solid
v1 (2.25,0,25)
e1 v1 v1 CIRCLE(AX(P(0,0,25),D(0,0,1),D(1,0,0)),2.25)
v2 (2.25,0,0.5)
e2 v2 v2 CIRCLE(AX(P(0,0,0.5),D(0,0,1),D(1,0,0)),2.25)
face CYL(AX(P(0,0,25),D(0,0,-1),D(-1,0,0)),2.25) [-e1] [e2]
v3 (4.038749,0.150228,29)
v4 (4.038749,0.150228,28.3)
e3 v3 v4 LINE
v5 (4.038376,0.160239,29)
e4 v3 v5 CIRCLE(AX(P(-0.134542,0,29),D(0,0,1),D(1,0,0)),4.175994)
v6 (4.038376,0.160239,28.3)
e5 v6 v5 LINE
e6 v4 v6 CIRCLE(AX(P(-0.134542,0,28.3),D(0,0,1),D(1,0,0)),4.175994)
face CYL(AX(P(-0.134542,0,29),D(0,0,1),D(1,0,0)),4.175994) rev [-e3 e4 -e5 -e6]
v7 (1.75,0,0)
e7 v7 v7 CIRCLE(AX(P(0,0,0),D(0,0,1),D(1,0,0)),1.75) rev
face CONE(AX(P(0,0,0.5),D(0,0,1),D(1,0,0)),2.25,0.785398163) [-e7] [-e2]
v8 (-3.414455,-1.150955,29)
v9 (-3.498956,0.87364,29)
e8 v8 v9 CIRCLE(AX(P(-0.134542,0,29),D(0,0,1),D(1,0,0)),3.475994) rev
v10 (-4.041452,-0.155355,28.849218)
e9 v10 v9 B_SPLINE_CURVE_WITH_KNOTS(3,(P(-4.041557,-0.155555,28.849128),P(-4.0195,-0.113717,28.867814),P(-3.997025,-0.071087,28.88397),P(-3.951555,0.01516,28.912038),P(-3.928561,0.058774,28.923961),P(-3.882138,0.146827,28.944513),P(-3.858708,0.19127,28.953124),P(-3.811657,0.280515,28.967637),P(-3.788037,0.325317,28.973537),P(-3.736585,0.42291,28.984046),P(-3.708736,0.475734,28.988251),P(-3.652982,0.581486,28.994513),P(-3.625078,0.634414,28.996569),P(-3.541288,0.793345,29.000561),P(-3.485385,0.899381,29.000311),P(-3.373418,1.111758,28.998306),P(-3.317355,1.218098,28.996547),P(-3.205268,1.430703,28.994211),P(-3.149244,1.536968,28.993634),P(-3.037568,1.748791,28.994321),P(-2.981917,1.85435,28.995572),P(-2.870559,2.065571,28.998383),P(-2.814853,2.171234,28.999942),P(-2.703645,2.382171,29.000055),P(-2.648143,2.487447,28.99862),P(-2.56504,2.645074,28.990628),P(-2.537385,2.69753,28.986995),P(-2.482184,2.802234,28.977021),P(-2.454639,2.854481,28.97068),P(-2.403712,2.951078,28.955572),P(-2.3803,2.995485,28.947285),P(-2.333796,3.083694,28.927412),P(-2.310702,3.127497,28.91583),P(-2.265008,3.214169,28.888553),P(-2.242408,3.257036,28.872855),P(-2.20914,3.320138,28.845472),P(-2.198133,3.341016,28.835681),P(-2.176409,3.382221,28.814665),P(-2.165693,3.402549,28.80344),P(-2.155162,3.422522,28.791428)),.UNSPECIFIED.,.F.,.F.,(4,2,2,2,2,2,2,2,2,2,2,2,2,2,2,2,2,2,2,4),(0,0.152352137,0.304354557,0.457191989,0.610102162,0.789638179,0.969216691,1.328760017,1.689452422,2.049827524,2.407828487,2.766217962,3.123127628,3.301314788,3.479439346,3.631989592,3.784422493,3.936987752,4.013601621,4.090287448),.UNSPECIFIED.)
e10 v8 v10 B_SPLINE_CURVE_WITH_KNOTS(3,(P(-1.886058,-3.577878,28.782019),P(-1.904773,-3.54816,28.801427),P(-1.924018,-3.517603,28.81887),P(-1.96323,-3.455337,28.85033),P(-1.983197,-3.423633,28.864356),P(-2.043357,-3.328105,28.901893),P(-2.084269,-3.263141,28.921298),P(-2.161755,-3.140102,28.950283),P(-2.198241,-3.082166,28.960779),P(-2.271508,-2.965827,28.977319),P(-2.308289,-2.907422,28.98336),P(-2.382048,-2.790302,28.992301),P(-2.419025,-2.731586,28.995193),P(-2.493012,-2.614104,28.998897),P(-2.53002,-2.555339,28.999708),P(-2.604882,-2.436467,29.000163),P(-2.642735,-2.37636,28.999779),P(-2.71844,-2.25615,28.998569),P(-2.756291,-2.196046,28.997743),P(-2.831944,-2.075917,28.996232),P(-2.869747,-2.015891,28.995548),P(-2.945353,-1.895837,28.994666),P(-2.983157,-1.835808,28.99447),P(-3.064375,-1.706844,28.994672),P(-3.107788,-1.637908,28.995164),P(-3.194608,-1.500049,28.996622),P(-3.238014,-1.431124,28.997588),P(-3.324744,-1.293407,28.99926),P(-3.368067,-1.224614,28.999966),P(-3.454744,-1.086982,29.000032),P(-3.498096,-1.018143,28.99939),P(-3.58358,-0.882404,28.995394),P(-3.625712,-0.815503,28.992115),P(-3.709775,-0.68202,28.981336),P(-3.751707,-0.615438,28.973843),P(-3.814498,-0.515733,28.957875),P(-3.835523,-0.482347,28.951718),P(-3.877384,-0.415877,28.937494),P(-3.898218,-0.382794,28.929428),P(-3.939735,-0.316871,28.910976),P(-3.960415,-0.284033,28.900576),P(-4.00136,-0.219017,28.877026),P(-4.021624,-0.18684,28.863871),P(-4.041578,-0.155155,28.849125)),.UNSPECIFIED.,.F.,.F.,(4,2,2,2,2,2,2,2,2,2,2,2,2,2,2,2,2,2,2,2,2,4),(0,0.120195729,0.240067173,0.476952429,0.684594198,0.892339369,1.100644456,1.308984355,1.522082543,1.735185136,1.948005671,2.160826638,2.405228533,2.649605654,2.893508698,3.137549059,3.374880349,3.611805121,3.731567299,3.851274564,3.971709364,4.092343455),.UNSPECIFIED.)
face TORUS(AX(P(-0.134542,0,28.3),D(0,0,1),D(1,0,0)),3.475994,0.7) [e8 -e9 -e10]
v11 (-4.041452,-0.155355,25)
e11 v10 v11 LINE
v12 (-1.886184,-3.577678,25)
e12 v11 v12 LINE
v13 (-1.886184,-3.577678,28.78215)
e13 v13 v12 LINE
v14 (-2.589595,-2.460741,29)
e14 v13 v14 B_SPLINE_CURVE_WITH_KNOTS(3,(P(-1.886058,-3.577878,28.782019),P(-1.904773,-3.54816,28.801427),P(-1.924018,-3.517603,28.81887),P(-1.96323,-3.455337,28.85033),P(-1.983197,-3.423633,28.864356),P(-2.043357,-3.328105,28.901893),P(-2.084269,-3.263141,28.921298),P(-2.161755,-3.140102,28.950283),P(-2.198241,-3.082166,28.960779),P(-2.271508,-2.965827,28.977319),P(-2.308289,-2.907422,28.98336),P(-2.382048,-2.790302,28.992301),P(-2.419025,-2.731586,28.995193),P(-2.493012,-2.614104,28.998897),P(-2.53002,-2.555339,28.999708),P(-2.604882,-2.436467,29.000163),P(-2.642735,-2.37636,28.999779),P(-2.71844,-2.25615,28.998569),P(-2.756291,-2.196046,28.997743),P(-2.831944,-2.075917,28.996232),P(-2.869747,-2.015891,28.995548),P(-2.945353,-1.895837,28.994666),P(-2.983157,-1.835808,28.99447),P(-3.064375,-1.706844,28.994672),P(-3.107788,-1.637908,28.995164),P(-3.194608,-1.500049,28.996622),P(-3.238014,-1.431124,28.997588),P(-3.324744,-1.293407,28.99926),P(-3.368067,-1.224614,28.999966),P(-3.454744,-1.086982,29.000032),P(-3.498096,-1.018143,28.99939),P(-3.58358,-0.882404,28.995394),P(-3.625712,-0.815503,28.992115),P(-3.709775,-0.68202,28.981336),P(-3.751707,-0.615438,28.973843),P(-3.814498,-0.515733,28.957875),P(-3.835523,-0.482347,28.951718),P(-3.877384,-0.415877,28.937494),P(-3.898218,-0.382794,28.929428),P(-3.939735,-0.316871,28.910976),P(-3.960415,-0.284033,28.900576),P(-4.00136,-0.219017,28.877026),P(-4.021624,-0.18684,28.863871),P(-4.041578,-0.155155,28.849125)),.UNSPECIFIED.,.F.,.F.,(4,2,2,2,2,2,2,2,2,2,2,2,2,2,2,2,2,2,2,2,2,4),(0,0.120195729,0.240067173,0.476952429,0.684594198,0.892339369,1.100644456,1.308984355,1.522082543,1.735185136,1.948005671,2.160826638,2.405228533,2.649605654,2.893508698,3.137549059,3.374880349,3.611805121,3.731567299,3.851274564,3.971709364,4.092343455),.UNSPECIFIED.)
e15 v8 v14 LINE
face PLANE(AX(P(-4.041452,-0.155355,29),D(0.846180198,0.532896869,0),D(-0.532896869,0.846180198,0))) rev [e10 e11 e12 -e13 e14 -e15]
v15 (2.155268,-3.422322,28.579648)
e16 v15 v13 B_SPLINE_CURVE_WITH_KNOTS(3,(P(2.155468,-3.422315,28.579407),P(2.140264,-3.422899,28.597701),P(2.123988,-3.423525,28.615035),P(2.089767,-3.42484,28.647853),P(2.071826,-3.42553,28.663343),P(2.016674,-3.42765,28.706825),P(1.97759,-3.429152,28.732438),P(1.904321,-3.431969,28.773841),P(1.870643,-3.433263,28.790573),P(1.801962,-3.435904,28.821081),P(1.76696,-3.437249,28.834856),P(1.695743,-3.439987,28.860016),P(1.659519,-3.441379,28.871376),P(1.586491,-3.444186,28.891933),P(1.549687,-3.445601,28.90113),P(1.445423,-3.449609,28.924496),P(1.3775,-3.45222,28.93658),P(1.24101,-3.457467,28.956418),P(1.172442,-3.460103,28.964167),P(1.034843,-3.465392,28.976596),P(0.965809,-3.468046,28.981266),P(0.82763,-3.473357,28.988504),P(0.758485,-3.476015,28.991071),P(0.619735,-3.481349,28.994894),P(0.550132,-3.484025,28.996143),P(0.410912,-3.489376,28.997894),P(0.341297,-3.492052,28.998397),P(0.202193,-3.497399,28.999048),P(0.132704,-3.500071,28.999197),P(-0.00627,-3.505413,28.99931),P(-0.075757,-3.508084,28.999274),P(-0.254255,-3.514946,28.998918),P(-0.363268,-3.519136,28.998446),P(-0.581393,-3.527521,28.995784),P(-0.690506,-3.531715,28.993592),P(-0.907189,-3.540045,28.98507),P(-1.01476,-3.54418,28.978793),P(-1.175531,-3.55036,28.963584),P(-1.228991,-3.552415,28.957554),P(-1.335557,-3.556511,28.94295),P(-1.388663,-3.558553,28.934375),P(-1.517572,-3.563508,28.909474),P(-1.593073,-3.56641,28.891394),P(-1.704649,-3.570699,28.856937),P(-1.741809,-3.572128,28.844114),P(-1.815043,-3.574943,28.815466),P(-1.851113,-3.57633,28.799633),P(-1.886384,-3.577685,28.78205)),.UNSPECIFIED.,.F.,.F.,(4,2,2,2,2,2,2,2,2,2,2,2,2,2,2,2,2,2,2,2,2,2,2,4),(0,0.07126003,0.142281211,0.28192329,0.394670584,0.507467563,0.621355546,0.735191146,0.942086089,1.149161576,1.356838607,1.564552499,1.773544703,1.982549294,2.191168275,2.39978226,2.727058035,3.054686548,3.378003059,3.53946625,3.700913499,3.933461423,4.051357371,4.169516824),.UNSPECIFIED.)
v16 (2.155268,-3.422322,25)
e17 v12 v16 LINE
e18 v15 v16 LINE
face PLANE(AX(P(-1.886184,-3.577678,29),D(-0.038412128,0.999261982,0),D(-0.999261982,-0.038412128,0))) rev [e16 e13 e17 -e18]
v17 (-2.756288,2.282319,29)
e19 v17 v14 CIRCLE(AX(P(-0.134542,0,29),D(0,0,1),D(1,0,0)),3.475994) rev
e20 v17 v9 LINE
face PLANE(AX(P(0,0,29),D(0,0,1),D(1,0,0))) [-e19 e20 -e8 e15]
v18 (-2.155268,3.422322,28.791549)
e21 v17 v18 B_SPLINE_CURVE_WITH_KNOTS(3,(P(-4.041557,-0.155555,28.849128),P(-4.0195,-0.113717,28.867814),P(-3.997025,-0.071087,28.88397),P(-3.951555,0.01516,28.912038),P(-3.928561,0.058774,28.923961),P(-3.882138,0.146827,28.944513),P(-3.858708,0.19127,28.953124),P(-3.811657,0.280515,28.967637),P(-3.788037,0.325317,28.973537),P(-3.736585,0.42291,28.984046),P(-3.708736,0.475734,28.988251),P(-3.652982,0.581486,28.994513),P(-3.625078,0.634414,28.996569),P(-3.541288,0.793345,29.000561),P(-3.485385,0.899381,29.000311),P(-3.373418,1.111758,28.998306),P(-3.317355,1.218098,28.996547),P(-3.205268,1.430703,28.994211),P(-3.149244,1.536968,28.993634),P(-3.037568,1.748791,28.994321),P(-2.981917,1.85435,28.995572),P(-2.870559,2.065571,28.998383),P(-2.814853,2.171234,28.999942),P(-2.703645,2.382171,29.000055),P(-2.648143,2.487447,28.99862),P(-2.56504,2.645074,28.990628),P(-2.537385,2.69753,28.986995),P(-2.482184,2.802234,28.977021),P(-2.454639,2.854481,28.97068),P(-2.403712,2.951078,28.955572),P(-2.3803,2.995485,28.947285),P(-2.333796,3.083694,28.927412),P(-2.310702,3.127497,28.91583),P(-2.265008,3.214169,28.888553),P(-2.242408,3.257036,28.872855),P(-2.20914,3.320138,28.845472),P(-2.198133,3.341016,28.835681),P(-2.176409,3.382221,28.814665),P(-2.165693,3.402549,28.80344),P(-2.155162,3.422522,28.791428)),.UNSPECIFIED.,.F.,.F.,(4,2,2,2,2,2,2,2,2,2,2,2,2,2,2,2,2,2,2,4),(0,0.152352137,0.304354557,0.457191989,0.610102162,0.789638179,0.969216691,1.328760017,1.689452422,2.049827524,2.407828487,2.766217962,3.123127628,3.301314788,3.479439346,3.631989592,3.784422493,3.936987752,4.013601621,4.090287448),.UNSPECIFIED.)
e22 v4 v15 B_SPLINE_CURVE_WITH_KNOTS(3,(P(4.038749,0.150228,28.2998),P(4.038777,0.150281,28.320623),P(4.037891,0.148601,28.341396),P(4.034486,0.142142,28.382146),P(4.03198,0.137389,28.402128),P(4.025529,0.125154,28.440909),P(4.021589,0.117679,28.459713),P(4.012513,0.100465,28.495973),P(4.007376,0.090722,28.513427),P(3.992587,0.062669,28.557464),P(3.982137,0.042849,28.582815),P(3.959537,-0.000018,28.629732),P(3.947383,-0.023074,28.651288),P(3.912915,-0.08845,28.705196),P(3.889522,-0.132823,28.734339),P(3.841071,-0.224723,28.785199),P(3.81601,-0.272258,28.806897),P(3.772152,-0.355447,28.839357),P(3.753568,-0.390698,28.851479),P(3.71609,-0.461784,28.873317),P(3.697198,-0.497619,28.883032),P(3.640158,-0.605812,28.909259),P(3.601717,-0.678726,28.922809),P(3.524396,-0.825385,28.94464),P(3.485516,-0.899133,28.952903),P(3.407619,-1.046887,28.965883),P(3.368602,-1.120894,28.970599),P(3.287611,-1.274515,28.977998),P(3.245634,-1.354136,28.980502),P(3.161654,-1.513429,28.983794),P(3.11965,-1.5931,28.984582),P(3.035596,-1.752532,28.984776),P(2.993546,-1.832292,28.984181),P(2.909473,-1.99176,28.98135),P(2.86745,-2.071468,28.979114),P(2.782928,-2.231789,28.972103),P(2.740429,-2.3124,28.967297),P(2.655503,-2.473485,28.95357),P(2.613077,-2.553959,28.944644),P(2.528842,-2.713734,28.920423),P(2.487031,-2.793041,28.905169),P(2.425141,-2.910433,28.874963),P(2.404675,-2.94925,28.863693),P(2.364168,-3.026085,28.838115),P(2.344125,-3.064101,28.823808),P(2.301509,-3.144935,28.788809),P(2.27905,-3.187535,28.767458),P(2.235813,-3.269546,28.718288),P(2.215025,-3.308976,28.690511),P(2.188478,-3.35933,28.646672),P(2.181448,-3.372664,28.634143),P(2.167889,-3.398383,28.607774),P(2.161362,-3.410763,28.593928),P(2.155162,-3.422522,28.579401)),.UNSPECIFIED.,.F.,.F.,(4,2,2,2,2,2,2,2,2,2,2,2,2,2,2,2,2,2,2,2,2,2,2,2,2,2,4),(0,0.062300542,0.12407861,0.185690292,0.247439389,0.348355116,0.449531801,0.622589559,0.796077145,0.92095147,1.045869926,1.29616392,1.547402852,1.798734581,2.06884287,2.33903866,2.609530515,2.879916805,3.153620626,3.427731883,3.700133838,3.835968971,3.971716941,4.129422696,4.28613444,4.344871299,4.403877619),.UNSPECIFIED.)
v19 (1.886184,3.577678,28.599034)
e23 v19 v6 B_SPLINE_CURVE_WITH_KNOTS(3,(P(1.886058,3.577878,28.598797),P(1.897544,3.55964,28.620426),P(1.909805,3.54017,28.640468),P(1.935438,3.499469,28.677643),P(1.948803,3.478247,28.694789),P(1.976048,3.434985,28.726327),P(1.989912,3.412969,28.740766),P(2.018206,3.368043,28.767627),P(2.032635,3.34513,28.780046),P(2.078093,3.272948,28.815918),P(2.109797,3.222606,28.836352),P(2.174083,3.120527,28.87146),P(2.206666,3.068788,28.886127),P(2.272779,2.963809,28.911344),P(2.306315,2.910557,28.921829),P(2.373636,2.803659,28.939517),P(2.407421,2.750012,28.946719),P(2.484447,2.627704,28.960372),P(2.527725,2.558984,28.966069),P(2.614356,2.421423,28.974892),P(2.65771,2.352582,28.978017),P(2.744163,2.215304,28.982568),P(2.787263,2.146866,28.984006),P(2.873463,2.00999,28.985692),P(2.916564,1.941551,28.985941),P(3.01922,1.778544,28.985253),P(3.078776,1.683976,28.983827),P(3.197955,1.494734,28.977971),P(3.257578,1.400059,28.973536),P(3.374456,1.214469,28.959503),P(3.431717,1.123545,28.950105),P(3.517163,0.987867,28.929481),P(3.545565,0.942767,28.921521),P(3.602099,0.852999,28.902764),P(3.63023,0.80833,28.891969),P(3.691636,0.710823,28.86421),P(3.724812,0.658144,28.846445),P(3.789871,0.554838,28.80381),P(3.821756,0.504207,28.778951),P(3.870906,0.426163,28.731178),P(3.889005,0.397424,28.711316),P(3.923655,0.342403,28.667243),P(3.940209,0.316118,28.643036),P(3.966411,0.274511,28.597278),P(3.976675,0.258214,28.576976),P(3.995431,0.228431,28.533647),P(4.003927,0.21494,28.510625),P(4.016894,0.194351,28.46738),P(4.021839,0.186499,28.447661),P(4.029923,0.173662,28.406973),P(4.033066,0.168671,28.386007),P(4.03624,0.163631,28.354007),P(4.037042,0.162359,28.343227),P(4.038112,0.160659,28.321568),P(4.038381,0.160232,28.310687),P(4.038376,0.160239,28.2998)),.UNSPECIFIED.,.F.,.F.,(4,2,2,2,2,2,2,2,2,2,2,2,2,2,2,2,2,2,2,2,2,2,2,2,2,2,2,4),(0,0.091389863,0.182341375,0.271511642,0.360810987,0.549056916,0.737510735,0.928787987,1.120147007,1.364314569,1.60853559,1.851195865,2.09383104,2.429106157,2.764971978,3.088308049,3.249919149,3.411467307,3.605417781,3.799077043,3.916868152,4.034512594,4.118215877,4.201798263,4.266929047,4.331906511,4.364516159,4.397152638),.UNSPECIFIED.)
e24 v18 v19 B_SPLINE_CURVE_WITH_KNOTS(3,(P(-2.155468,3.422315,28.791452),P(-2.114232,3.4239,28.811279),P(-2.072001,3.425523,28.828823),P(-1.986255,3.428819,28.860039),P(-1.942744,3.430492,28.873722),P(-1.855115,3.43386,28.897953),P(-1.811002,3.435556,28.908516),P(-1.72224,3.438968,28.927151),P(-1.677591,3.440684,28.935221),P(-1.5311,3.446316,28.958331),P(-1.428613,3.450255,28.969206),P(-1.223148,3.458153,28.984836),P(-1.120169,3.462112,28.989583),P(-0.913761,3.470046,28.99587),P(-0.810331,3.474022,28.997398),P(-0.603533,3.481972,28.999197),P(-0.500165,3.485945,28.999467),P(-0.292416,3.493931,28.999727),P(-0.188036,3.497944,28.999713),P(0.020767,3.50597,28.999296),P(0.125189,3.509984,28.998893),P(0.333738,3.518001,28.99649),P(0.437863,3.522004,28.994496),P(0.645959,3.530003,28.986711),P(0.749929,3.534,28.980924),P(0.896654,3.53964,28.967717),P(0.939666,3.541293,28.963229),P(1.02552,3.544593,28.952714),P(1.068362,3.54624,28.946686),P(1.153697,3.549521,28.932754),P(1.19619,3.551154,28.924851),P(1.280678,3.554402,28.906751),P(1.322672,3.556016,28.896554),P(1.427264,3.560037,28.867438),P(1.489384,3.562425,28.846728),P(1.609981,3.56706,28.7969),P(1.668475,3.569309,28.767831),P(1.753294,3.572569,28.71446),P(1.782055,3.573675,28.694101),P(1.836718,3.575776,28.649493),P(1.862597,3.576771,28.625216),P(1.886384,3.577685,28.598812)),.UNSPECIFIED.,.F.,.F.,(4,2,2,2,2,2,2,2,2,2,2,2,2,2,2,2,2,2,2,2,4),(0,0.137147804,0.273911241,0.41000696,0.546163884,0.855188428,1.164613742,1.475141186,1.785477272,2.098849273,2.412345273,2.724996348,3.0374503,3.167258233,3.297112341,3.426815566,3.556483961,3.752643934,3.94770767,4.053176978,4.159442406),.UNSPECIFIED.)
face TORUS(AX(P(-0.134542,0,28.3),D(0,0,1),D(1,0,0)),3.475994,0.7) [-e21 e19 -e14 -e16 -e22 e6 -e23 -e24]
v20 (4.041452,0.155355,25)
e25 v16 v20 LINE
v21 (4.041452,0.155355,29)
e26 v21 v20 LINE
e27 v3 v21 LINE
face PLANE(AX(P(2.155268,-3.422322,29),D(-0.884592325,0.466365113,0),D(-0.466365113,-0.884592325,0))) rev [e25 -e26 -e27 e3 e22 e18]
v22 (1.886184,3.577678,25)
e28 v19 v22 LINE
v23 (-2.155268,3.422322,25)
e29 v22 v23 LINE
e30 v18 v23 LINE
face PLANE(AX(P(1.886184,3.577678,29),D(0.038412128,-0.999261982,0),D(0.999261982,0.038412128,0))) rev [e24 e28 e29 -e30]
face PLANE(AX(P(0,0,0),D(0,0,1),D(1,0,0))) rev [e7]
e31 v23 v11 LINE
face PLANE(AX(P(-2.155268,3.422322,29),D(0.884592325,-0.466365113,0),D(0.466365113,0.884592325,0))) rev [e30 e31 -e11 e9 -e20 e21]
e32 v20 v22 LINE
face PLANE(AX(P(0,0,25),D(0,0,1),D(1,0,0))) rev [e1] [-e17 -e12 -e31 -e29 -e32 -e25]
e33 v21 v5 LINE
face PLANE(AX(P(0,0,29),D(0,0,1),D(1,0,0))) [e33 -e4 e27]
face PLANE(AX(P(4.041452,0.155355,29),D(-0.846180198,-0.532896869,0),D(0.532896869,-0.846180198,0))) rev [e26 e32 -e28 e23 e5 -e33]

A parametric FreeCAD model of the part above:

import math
import FreeCAD as App
import Part
import Sketcher
Q = App.Units.Quantity


def edges_at(feature, points):
    """Names of the edges that pass closest to the given points."""
    edges = feature.Shape.Edges
    near = lambda p: min(range(len(edges)), key=lambda i: edges[i].distToShape(Part.Vertex(*p))[0])
    return sorted({f"Edge{near(p) + 1}" for p in points})

doc = App.newDocument("Part")
body = doc.addObject("PartDesign::Body", "Body")

# Sketch on XY plane
sketch1 = body.newObject("Sketcher::SketchObject", "Sketch")
sketch1.AttachmentSupport = (doc.getObject("XY_Plane"), [""])
sketch1.MapMode = "FlatFace"
sketch1.addGeometry(Part.Circle(App.Vector(0, 0, 0), App.Vector(0, 0, 1), 2.25), False)
sketch1.addConstraint([
    Sketcher.Constraint("Coincident", 0, 3, -1, 1),
    Sketcher.Constraint("Diameter", 0, Q("4.5 mm")),
])
pad1 = body.newObject("PartDesign::Pad", "Pad")
pad1.Profile = sketch1
pad1.Length = 25

# Sketch on XY plane
sketch2 = body.newObject("Sketcher::SketchObject", "Sketch001")
sketch2.AttachmentSupport = (doc.getObject("XY_Plane"), [""])
sketch2.MapMode = "FlatFace"
sketch2.AttachmentOffset = App.Placement(App.Vector(0, 0, 25), App.Rotation())
sketch2.addGeometry([
    Part.LineSegment(App.Vector(1.886184, 3.577678, 0), App.Vector(-2.155268, 3.422322, 0)),  # 0
    Part.LineSegment(App.Vector(-2.155268, 3.422322, 0), App.Vector(-4.041452, -0.155355, 0)),  # 1
    Part.LineSegment(App.Vector(-4.041452, -0.155355, 0), App.Vector(-1.886184, -3.577678, 0)),  # 2
    Part.LineSegment(App.Vector(-1.886184, -3.577678, 0), App.Vector(2.155268, -3.422322, 0)),  # 3
    Part.LineSegment(App.Vector(2.155268, -3.422322, 0), App.Vector(4.041452, 0.155355, 0)),  # 4
    Part.LineSegment(App.Vector(4.041452, 0.155355, 0), App.Vector(1.886184, 3.577678, 0)),  # 5
], False)
sketch2.addConstraint([
    Sketcher.Constraint("Coincident", 0, 2, 1, 1),
    Sketcher.Constraint("Coincident", 1, 2, 2, 1),
    Sketcher.Constraint("Coincident", 2, 2, 3, 1),
    Sketcher.Constraint("Coincident", 3, 2, 4, 1),
    Sketcher.Constraint("Coincident", 4, 2, 5, 1),
    Sketcher.Constraint("Coincident", 5, 2, 0, 1),
    Sketcher.Constraint("Symmetric", 0, 2, 3, 2, -1, 1),
    Sketcher.Constraint("Symmetric", 1, 2, 4, 2, -1, 1),
    Sketcher.Constraint("Symmetric", 2, 2, 5, 2, -1, 1),
    Sketcher.Constraint("Equal", 0, 1),
    Sketcher.Constraint("Equal", 1, 2),
    Sketcher.Constraint("DistanceY", 2, 2, 0, 2, Q("7 mm")),
    Sketcher.Constraint("DistanceX", 1, 2, -1, 1, Q("4.041452 mm")),
    Sketcher.Constraint("DistanceX", 2, 2, 3, 2, Q("4.041452 mm")),
    Sketcher.Constraint("DistanceX", 1, 2, 3, 2, Q("6.19672 mm")),
])
pad2 = body.newObject("PartDesign::Pad", "Pad001")
pad2.Profile = sketch2
pad2.Length = 4

# Sketch on XZ plane
sketch3 = body.newObject("Sketcher::SketchObject", "Sketch002")
sketch3.AttachmentSupport = (doc.getObject("XZ_Plane"), [""])
sketch3.MapMode = "FlatFace"
sketch3.addGeometry([
    Part.LineSegment(App.Vector(4.041452, 29, 0), App.Vector(4.041452, 28.3, 0)),
    Part.ArcOfCircle(Part.Circle(App.Vector(3.341452, 28.3, 0), App.Vector(0, 0, 1), 0.7), math.radians(0), math.radians(90)),
    Part.LineSegment(App.Vector(3.341452, 29, 0), App.Vector(4.041452, 29, 0)),
], False)
sketch3.addGeometry(Part.LineSegment(App.Vector(-0.134542, 29, 0), App.Vector(-0.134542, 28.3, 0)), True)  # axis
sketch3.addConstraint([
    Sketcher.Constraint("Tangent", 0, 2, 1, 1),
    Sketcher.Constraint("Tangent", 1, 2, 2, 1),
    Sketcher.Constraint("Coincident", 2, 2, 0, 1),
    Sketcher.Constraint("Vertical", 0),
    Sketcher.Constraint("Horizontal", 2),
    Sketcher.Constraint("Vertical", 3),
    Sketcher.Constraint("Horizontal", 2, 2, 3, 1),
    Sketcher.Constraint("Horizontal", 0, 2, 3, 2),
    Sketcher.Constraint("Radius", 1, Q("0.7 mm")),
    Sketcher.Constraint("DistanceY", -1, 1, 1, 2, Q("29 mm")),
    Sketcher.Constraint("DistanceX", -1, 1, 1, 3, Q("3.341452 mm")),
    Sketcher.Constraint("DistanceX", 3, 1, -1, 1, Q("0.134542 mm")),
])
groove = body.newObject("PartDesign::Groove", "Groove")
groove.Profile = sketch3
groove.ReferenceAxis = (sketch3, ["Axis0"])
groove.Angle = 360
doc.recompute()

chamfer = body.newObject("PartDesign::Chamfer", "Chamfer")
chamfer.Base = (groove, edges_at(groove, [(-2.25, 0, 0)]))
chamfer.Size = 0.5

doc.recompute()
